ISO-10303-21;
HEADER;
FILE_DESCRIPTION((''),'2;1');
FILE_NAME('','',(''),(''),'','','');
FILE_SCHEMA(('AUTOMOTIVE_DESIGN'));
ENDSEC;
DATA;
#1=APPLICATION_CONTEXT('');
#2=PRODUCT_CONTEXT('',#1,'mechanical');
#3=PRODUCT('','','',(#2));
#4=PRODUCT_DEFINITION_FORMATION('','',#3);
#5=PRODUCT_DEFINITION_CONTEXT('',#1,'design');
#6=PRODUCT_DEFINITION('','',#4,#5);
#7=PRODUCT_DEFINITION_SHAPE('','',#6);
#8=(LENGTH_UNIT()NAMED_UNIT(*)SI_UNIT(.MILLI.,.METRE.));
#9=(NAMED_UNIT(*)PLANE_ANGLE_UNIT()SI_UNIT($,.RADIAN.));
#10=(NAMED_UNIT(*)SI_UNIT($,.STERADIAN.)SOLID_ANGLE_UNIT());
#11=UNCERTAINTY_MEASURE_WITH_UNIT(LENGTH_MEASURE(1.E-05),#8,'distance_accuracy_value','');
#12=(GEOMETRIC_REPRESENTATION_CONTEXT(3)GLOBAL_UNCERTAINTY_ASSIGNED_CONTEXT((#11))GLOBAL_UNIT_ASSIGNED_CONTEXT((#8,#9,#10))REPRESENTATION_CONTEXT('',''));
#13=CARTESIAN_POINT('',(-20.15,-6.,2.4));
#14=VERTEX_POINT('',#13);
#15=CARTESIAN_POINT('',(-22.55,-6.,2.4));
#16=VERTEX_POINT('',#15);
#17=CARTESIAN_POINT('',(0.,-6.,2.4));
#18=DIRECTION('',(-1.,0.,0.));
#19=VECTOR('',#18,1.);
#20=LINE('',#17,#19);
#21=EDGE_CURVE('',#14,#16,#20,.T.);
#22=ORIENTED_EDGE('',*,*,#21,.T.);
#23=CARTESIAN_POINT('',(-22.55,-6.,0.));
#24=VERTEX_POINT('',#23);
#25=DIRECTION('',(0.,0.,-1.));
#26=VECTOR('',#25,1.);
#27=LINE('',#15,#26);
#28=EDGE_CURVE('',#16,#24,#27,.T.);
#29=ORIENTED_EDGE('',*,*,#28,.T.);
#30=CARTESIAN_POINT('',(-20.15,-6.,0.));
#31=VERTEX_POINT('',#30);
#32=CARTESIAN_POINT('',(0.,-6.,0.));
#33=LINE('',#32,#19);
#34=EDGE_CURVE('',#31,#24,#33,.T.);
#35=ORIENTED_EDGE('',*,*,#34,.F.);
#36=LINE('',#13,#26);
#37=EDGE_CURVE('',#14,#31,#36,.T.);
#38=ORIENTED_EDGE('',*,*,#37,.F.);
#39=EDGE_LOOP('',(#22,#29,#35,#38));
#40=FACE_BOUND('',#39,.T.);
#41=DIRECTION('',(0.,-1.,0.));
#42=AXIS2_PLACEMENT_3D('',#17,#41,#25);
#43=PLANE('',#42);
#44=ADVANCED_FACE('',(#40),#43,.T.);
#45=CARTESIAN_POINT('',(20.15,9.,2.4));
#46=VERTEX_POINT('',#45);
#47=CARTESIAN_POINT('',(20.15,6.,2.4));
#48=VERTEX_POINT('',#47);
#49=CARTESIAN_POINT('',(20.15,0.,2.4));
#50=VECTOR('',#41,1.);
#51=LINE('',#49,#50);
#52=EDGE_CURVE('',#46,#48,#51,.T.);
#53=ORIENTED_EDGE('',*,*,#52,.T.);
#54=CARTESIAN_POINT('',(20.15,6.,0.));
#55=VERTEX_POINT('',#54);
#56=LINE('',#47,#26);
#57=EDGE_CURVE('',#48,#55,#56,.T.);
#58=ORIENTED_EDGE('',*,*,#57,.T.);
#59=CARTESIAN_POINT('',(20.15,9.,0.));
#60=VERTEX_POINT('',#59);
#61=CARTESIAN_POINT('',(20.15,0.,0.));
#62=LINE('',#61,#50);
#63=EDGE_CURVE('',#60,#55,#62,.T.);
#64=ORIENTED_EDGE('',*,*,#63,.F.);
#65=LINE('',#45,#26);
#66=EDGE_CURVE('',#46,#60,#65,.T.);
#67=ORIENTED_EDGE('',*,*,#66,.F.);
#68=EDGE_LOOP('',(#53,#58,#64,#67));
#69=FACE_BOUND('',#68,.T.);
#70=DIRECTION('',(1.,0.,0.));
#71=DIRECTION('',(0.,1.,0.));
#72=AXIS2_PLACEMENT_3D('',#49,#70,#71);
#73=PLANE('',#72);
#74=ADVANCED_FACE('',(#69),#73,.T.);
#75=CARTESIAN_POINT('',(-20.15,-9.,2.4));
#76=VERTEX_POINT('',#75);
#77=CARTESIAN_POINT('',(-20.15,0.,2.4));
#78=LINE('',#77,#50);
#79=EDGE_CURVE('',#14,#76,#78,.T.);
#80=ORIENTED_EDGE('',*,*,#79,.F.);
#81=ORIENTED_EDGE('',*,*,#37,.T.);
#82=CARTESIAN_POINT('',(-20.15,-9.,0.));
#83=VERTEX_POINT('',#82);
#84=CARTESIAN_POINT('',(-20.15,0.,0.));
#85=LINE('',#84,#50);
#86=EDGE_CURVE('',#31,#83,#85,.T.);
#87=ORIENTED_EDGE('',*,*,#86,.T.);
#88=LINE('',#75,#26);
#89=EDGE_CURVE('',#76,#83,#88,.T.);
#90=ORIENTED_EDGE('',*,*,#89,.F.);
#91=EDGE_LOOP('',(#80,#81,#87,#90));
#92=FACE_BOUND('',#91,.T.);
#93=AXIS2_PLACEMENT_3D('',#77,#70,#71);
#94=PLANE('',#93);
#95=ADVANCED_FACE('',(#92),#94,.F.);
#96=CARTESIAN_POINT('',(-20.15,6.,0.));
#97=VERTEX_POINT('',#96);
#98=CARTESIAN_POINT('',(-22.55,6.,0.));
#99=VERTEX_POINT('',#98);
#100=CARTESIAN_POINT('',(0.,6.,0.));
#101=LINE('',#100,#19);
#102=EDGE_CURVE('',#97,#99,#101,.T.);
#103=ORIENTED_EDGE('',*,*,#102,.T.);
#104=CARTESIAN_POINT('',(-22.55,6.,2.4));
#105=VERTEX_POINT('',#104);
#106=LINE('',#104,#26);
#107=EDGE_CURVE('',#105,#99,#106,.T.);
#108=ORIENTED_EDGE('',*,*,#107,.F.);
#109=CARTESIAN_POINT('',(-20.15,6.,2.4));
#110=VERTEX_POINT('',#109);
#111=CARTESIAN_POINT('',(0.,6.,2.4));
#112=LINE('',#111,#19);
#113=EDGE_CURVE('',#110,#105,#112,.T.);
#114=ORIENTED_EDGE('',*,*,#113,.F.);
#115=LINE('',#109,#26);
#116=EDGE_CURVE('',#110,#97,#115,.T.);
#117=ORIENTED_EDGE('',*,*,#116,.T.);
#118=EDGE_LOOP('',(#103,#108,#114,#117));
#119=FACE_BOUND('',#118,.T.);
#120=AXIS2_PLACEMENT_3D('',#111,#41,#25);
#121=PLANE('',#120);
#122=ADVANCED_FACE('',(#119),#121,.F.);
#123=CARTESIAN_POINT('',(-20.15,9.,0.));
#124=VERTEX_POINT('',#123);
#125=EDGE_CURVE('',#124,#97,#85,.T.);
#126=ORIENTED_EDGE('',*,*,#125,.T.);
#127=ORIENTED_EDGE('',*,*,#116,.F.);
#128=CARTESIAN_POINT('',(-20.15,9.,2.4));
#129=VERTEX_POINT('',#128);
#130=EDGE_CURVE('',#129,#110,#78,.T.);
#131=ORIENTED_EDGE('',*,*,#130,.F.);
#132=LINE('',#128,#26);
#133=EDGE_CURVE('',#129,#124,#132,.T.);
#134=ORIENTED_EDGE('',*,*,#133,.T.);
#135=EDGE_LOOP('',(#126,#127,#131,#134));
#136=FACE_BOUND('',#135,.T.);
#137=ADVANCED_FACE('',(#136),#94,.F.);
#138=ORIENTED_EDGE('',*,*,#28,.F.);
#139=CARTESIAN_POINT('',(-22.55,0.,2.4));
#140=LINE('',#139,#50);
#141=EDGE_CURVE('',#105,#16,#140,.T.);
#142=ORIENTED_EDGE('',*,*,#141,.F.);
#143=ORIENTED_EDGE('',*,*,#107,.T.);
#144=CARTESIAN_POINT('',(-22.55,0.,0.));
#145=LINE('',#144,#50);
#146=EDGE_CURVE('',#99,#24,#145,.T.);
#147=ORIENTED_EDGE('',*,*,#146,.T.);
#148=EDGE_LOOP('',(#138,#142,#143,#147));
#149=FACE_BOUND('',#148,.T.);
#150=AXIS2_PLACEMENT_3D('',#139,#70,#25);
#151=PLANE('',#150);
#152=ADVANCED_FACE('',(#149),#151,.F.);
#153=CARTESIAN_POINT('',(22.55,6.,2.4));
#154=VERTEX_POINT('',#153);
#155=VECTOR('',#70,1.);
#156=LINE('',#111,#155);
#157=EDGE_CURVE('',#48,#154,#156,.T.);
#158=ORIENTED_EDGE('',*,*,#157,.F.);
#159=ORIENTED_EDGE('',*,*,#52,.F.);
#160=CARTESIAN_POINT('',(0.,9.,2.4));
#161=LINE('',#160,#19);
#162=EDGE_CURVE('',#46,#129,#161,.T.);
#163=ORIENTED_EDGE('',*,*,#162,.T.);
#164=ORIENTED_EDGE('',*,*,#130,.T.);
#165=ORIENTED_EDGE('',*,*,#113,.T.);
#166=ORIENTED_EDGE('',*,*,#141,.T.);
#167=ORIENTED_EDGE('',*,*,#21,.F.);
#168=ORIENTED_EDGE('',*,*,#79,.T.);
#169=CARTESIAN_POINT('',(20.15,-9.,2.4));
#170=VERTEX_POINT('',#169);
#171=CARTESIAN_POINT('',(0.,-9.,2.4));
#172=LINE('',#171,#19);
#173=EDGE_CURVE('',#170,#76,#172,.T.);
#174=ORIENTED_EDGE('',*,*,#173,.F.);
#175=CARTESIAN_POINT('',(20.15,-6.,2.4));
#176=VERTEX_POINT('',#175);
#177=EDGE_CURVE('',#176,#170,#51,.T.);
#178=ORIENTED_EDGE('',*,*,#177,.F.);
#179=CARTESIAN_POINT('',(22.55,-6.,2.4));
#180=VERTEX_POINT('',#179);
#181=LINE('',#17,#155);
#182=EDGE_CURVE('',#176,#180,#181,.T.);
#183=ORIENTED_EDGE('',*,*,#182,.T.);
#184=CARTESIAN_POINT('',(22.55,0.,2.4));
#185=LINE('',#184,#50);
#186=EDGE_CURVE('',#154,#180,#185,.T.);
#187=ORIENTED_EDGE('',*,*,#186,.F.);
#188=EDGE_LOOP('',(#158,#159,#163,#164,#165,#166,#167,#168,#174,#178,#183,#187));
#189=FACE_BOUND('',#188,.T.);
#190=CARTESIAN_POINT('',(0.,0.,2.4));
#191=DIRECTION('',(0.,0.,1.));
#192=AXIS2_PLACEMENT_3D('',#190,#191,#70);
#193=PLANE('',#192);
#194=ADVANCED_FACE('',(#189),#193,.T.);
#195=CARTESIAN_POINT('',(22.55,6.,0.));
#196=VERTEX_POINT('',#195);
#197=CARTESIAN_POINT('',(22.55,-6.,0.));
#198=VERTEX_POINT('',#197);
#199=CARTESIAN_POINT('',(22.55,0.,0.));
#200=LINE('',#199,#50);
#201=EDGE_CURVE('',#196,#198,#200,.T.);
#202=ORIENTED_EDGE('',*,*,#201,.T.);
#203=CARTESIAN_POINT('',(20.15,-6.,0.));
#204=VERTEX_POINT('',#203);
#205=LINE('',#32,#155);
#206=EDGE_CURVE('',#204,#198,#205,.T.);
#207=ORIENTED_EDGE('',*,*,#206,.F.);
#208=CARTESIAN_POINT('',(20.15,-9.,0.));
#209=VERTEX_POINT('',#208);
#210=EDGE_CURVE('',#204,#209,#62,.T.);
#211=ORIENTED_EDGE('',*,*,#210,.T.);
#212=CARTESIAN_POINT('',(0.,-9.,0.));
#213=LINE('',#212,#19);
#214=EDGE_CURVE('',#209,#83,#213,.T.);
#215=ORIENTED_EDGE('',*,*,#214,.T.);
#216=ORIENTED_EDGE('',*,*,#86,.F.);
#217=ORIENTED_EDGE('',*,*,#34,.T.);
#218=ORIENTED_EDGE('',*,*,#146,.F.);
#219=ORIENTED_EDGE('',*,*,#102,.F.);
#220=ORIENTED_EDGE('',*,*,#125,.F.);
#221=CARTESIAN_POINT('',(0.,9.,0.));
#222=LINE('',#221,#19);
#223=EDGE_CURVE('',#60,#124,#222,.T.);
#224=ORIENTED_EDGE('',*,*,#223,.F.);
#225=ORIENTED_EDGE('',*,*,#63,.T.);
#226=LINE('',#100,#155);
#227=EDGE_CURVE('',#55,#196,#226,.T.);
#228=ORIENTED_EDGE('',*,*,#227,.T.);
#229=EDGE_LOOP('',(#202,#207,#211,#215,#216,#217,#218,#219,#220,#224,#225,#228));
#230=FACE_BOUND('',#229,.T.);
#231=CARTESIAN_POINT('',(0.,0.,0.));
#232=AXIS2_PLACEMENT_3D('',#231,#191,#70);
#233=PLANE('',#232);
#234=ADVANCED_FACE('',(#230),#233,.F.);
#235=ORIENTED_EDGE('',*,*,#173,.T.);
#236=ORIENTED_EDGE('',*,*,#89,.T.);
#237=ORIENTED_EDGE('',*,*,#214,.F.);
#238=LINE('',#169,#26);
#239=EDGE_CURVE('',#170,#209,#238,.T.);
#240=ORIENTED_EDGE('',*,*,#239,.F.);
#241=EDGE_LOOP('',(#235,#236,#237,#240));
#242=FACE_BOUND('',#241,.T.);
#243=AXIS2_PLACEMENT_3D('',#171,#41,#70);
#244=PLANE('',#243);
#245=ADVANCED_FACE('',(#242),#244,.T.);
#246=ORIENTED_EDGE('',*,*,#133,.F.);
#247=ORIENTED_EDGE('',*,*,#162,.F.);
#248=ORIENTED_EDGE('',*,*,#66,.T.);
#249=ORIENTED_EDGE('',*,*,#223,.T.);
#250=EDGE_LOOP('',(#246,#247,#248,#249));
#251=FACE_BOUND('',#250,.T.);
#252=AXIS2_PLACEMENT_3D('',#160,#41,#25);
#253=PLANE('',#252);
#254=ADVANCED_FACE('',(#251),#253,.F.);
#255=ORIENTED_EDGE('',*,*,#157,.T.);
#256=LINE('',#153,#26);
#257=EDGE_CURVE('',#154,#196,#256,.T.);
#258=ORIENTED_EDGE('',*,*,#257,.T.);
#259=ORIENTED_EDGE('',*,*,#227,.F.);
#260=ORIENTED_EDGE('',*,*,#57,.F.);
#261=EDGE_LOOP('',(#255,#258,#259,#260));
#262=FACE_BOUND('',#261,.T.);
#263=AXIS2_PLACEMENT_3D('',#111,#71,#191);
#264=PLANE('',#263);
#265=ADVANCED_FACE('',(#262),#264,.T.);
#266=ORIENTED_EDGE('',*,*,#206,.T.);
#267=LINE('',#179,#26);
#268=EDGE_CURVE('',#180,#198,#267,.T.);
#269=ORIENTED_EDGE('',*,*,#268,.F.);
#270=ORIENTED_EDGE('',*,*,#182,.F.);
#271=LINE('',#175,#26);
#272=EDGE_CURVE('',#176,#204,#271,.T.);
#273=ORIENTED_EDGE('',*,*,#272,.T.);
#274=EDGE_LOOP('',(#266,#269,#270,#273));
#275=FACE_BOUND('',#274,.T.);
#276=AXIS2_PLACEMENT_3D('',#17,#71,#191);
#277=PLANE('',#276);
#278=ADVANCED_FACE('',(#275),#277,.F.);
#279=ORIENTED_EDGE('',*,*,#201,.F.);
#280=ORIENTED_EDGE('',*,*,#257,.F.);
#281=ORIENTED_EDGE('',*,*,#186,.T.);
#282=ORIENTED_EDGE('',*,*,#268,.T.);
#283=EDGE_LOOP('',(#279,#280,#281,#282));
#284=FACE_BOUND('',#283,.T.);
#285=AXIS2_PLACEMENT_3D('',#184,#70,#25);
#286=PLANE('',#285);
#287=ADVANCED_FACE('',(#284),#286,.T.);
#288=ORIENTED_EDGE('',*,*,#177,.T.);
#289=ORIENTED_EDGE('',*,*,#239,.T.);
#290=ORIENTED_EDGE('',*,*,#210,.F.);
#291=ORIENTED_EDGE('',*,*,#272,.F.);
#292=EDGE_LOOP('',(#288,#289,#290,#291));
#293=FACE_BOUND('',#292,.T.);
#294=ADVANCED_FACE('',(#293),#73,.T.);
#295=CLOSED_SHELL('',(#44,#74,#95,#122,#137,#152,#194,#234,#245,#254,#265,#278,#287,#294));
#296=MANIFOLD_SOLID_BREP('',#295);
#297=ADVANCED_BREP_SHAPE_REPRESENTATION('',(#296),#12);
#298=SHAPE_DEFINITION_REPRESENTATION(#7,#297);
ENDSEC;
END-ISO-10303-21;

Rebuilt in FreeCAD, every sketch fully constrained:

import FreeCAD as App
import Part
import Sketcher
from FreeCAD import Vector


def add_polygon(sketch, points):
    """Adds a closed chain of lines whose ends are joined by coincident constraints."""
    first, n = sketch.GeometryCount, len(points)
    for a, b in zip(points, points[1:] + points[:1]):
        sketch.addGeometry(Part.LineSegment(App.Vector(*a, 0), App.Vector(*b, 0)), False)
    for i in range(n):
        sketch.addConstraint(Sketcher.Constraint("Coincident", first + i, 2, first + (i + 1) % n, 1))

doc = App.newDocument("Part")
params = doc.addObject("Spreadsheet::Sheet", "Params")
for row, (alias, value) in enumerate([
    ("sketch1_height", "3 mm"),
    ("sketch1_height2", "12 mm"),
    ("sketch1_width", "40.3 mm"),
    ("sketch1_width2", "2.4 mm"),
    ("pad1_length", "2.4 mm"),
], start=1):
    params.set(f"A{row}", alias)
    params.set(f"B{row}", "=" + value)
    params.setAlias(f"B{row}", alias)

body = doc.addObject("PartDesign::Body", "Body")

# Sketch on XY plane
sketch1 = doc.addObject("Sketcher::SketchObject", "Sketch")
body.addObject(sketch1)
sketch1.AttachmentSupport = (doc.XY_Plane, [""])
sketch1.MapMode = "FlatFace"
add_polygon(sketch1, [(20.1, 9), (-20.1, 9), (-20.1, 6), (-22.6, 6), (-22.6, -6), (-20.1, -6), (-20.1, -9), (20.1, -9), (20.1, -6), (22.6, -6), (22.6, 6), (20.1, 6)])  # lines 0-11
sketch1.addConstraint([
    Sketcher.Constraint("Horizontal", 0),
    Sketcher.Constraint("Vertical", 1),
    Sketcher.Constraint("Horizontal", 2),
    Sketcher.Constraint("Vertical", 3),
    Sketcher.Constraint("Horizontal", 4),
    Sketcher.Constraint("Vertical", 5),
    Sketcher.Constraint("Horizontal", 6),
    Sketcher.Constraint("Vertical", 7),
    Sketcher.Constraint("Horizontal", 8),
    Sketcher.Constraint("Vertical", 9),
    Sketcher.Constraint("Horizontal", 10),
    Sketcher.Constraint("Vertical", 11),
    Sketcher.Constraint("Symmetric", 0, 2, 6, 2, -1, 1),
    Sketcher.Constraint("Symmetric", 2, 2, 8, 2, -1, 1),
    Sketcher.Constraint("Symmetric", 4, 2, 10, 2, -1, 1),
    Sketcher.Constraint("Symmetric", 4, 2, 7, 2, -2),
    Sketcher.Constraint("DistanceY", 1, 2, 1, 1, 3.0),
    Sketcher.Constraint("DistanceY", 3, 2, 3, 1, 12.0),
    Sketcher.Constraint("DistanceX", 0, 2, 0, 1, 40.3),
    Sketcher.Constraint("DistanceX", 2, 2, 2, 1, 2.4),
])
sketch1.setExpression("Constraints[28]", "Params.sketch1_height")
sketch1.setExpression("Constraints[29]", "Params.sketch1_height2")
sketch1.setExpression("Constraints[30]", "Params.sketch1_width")
sketch1.setExpression("Constraints[31]", "Params.sketch1_width2")
pad1 = doc.addObject("PartDesign::Pad", "Pad")
body.addObject(pad1)
pad1.Profile = sketch1
pad1.setExpression("Length", "Params.pad1_length")

doc.recompute()
